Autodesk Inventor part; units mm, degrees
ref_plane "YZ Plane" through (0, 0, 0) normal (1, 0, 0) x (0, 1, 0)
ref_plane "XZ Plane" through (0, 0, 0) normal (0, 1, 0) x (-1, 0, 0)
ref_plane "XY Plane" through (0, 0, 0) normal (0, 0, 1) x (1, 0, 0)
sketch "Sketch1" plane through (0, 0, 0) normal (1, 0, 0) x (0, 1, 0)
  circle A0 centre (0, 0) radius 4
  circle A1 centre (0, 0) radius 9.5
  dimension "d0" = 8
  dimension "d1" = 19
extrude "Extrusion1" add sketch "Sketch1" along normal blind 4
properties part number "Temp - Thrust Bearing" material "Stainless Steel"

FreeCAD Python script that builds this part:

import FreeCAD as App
import Part
import Sketcher
from FreeCAD import Vector
Q = App.Units.Quantity

doc = App.newDocument("Part")
body = doc.addObject("PartDesign::Body", "Body")

sketch1 = body.newObject("Sketcher::SketchObject", "Sketch")
sketch1.AttachmentSupport = (doc.getObject("YZ_Plane"), [""])
sketch1.MapMode = "FlatFace"
sketch1.addGeometry(Part.Circle(Vector(0, 0, 0), Vector(0, 0, 1), 9.5), False)
sketch1.addGeometry(Part.Circle(Vector(0, 0, 0), Vector(0, 0, 1), 4), False)
sketch1.addConstraint(Sketcher.Constraint("Coincident", 0, 3, -1, 1))
sketch1.addConstraint(Sketcher.Constraint("Coincident", 1, 3, -1, 1))
sketch1.addConstraint(Sketcher.Constraint("Diameter", 0, Q("19 mm")))
sketch1.addConstraint(Sketcher.Constraint("Diameter", 1, Q("8 mm")))
pad1 = body.newObject("PartDesign::Pad", "Pad")
pad1.Profile = sketch1
pad1.Length = 4

doc.recompute()
